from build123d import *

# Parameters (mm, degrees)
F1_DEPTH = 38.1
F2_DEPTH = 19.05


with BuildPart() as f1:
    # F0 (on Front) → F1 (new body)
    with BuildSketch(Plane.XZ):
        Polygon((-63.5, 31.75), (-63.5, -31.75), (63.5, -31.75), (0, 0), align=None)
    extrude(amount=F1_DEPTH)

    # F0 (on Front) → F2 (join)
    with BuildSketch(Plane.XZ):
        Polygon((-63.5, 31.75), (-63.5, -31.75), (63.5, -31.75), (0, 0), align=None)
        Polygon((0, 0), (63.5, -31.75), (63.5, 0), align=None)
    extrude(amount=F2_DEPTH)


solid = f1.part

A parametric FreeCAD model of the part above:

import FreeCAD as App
import Part
import Sketcher
from FreeCAD import Vector
Q = App.Units.Quantity

doc = App.newDocument("Part")
body = doc.addObject("PartDesign::Body", "Body")

# Sketch on XZ plane
sketch1 = body.newObject("Sketcher::SketchObject", "Sketch")
sketch1.AttachmentSupport = (doc.getObject("XZ_Plane"), [""])
sketch1.MapMode = "FlatFace"
sketch1.addGeometry(Part.LineSegment(Vector(-64, 32, 0), Vector(-64, -32, 0)), False)
sketch1.addGeometry(Part.LineSegment(Vector(-64, -32, 0), Vector(64, -32, 0)), False)
sketch1.addGeometry(Part.LineSegment(Vector(64, -32, 0), Vector(-64, 32, 0)), False)
sketch1.addConstraint(Sketcher.Constraint("Coincident", 0, 2, 1, 1))
sketch1.addConstraint(Sketcher.Constraint("Coincident", 1, 2, 2, 1))
sketch1.addConstraint(Sketcher.Constraint("Coincident", 2, 2, 0, 1))
sketch1.addConstraint(Sketcher.Constraint("Vertical", 0))
sketch1.addConstraint(Sketcher.Constraint("Horizontal", 1))
sketch1.addConstraint(Sketcher.Constraint("Symmetric", 1, 2, 2, 2, -1, 1))
sketch1.addConstraint(Sketcher.Constraint("DistanceX", 1, 1, 1, 2, Q("5 in")))
sketch1.addConstraint(Sketcher.Constraint("DistanceY", 0, 2, 0, 1, Q("2.5 in")))
pad1 = body.newObject("PartDesign::Pad", "Pad")
pad1.Profile = sketch1
pad1.Length = Q("1.5 in")

# Sketch on XZ plane
sketch2 = body.newObject("Sketcher::SketchObject", "Sketch001")
sketch2.AttachmentSupport = (doc.getObject("XZ_Plane"), [""])
sketch2.MapMode = "FlatFace"
sketch2.addGeometry(Part.LineSegment(Vector(-64, 32, 0), Vector(-64, -32, 0)), False)
sketch2.addGeometry(Part.LineSegment(Vector(-64, -32, 0), Vector(64, -32, 0)), False)
sketch2.addGeometry(Part.LineSegment(Vector(64, -32, 0), Vector(64, 0, 0)), False)
sketch2.addGeometry(Part.LineSegment(Vector(64, 0, 0), Vector(0, 0, 0)), False)
sketch2.addGeometry(Part.LineSegment(Vector(0, 0, 0), Vector(-64, 32, 0)), False)
sketch2.addConstraint(Sketcher.Constraint("Coincident", 0, 2, 1, 1))
sketch2.addConstraint(Sketcher.Constraint("Coincident", 1, 2, 2, 1))
sketch2.addConstraint(Sketcher.Constraint("Coincident", 2, 2, 3, 1))
sketch2.addConstraint(Sketcher.Constraint("Coincident", 3, 2, 4, 1))
sketch2.addConstraint(Sketcher.Constraint("Coincident", 4, 2, 0, 1))
sketch2.addConstraint(Sketcher.Constraint("Vertical", 0))
sketch2.addConstraint(Sketcher.Constraint("Horizontal", 1))
sketch2.addConstraint(Sketcher.Constraint("Vertical", 2))
sketch2.addConstraint(Sketcher.Constraint("Horizontal", 3))
sketch2.addConstraint(Sketcher.Constraint("Coincident", 3, 2, -1, 1))
sketch2.addConstraint(Sketcher.Constraint("Symmetric", 1, 2, 4, 2, -1, 1))
sketch2.addConstraint(Sketcher.Constraint("Equal", 3, 0))
sketch2.addConstraint(Sketcher.Constraint("DistanceX", 1, 1, 1, 2, Q("5 in")))
pad2 = body.newObject("PartDesign::Pad", "Pad001")
pad2.Profile = sketch2
pad2.Length = Q("0.75 in")

doc.recompute()
